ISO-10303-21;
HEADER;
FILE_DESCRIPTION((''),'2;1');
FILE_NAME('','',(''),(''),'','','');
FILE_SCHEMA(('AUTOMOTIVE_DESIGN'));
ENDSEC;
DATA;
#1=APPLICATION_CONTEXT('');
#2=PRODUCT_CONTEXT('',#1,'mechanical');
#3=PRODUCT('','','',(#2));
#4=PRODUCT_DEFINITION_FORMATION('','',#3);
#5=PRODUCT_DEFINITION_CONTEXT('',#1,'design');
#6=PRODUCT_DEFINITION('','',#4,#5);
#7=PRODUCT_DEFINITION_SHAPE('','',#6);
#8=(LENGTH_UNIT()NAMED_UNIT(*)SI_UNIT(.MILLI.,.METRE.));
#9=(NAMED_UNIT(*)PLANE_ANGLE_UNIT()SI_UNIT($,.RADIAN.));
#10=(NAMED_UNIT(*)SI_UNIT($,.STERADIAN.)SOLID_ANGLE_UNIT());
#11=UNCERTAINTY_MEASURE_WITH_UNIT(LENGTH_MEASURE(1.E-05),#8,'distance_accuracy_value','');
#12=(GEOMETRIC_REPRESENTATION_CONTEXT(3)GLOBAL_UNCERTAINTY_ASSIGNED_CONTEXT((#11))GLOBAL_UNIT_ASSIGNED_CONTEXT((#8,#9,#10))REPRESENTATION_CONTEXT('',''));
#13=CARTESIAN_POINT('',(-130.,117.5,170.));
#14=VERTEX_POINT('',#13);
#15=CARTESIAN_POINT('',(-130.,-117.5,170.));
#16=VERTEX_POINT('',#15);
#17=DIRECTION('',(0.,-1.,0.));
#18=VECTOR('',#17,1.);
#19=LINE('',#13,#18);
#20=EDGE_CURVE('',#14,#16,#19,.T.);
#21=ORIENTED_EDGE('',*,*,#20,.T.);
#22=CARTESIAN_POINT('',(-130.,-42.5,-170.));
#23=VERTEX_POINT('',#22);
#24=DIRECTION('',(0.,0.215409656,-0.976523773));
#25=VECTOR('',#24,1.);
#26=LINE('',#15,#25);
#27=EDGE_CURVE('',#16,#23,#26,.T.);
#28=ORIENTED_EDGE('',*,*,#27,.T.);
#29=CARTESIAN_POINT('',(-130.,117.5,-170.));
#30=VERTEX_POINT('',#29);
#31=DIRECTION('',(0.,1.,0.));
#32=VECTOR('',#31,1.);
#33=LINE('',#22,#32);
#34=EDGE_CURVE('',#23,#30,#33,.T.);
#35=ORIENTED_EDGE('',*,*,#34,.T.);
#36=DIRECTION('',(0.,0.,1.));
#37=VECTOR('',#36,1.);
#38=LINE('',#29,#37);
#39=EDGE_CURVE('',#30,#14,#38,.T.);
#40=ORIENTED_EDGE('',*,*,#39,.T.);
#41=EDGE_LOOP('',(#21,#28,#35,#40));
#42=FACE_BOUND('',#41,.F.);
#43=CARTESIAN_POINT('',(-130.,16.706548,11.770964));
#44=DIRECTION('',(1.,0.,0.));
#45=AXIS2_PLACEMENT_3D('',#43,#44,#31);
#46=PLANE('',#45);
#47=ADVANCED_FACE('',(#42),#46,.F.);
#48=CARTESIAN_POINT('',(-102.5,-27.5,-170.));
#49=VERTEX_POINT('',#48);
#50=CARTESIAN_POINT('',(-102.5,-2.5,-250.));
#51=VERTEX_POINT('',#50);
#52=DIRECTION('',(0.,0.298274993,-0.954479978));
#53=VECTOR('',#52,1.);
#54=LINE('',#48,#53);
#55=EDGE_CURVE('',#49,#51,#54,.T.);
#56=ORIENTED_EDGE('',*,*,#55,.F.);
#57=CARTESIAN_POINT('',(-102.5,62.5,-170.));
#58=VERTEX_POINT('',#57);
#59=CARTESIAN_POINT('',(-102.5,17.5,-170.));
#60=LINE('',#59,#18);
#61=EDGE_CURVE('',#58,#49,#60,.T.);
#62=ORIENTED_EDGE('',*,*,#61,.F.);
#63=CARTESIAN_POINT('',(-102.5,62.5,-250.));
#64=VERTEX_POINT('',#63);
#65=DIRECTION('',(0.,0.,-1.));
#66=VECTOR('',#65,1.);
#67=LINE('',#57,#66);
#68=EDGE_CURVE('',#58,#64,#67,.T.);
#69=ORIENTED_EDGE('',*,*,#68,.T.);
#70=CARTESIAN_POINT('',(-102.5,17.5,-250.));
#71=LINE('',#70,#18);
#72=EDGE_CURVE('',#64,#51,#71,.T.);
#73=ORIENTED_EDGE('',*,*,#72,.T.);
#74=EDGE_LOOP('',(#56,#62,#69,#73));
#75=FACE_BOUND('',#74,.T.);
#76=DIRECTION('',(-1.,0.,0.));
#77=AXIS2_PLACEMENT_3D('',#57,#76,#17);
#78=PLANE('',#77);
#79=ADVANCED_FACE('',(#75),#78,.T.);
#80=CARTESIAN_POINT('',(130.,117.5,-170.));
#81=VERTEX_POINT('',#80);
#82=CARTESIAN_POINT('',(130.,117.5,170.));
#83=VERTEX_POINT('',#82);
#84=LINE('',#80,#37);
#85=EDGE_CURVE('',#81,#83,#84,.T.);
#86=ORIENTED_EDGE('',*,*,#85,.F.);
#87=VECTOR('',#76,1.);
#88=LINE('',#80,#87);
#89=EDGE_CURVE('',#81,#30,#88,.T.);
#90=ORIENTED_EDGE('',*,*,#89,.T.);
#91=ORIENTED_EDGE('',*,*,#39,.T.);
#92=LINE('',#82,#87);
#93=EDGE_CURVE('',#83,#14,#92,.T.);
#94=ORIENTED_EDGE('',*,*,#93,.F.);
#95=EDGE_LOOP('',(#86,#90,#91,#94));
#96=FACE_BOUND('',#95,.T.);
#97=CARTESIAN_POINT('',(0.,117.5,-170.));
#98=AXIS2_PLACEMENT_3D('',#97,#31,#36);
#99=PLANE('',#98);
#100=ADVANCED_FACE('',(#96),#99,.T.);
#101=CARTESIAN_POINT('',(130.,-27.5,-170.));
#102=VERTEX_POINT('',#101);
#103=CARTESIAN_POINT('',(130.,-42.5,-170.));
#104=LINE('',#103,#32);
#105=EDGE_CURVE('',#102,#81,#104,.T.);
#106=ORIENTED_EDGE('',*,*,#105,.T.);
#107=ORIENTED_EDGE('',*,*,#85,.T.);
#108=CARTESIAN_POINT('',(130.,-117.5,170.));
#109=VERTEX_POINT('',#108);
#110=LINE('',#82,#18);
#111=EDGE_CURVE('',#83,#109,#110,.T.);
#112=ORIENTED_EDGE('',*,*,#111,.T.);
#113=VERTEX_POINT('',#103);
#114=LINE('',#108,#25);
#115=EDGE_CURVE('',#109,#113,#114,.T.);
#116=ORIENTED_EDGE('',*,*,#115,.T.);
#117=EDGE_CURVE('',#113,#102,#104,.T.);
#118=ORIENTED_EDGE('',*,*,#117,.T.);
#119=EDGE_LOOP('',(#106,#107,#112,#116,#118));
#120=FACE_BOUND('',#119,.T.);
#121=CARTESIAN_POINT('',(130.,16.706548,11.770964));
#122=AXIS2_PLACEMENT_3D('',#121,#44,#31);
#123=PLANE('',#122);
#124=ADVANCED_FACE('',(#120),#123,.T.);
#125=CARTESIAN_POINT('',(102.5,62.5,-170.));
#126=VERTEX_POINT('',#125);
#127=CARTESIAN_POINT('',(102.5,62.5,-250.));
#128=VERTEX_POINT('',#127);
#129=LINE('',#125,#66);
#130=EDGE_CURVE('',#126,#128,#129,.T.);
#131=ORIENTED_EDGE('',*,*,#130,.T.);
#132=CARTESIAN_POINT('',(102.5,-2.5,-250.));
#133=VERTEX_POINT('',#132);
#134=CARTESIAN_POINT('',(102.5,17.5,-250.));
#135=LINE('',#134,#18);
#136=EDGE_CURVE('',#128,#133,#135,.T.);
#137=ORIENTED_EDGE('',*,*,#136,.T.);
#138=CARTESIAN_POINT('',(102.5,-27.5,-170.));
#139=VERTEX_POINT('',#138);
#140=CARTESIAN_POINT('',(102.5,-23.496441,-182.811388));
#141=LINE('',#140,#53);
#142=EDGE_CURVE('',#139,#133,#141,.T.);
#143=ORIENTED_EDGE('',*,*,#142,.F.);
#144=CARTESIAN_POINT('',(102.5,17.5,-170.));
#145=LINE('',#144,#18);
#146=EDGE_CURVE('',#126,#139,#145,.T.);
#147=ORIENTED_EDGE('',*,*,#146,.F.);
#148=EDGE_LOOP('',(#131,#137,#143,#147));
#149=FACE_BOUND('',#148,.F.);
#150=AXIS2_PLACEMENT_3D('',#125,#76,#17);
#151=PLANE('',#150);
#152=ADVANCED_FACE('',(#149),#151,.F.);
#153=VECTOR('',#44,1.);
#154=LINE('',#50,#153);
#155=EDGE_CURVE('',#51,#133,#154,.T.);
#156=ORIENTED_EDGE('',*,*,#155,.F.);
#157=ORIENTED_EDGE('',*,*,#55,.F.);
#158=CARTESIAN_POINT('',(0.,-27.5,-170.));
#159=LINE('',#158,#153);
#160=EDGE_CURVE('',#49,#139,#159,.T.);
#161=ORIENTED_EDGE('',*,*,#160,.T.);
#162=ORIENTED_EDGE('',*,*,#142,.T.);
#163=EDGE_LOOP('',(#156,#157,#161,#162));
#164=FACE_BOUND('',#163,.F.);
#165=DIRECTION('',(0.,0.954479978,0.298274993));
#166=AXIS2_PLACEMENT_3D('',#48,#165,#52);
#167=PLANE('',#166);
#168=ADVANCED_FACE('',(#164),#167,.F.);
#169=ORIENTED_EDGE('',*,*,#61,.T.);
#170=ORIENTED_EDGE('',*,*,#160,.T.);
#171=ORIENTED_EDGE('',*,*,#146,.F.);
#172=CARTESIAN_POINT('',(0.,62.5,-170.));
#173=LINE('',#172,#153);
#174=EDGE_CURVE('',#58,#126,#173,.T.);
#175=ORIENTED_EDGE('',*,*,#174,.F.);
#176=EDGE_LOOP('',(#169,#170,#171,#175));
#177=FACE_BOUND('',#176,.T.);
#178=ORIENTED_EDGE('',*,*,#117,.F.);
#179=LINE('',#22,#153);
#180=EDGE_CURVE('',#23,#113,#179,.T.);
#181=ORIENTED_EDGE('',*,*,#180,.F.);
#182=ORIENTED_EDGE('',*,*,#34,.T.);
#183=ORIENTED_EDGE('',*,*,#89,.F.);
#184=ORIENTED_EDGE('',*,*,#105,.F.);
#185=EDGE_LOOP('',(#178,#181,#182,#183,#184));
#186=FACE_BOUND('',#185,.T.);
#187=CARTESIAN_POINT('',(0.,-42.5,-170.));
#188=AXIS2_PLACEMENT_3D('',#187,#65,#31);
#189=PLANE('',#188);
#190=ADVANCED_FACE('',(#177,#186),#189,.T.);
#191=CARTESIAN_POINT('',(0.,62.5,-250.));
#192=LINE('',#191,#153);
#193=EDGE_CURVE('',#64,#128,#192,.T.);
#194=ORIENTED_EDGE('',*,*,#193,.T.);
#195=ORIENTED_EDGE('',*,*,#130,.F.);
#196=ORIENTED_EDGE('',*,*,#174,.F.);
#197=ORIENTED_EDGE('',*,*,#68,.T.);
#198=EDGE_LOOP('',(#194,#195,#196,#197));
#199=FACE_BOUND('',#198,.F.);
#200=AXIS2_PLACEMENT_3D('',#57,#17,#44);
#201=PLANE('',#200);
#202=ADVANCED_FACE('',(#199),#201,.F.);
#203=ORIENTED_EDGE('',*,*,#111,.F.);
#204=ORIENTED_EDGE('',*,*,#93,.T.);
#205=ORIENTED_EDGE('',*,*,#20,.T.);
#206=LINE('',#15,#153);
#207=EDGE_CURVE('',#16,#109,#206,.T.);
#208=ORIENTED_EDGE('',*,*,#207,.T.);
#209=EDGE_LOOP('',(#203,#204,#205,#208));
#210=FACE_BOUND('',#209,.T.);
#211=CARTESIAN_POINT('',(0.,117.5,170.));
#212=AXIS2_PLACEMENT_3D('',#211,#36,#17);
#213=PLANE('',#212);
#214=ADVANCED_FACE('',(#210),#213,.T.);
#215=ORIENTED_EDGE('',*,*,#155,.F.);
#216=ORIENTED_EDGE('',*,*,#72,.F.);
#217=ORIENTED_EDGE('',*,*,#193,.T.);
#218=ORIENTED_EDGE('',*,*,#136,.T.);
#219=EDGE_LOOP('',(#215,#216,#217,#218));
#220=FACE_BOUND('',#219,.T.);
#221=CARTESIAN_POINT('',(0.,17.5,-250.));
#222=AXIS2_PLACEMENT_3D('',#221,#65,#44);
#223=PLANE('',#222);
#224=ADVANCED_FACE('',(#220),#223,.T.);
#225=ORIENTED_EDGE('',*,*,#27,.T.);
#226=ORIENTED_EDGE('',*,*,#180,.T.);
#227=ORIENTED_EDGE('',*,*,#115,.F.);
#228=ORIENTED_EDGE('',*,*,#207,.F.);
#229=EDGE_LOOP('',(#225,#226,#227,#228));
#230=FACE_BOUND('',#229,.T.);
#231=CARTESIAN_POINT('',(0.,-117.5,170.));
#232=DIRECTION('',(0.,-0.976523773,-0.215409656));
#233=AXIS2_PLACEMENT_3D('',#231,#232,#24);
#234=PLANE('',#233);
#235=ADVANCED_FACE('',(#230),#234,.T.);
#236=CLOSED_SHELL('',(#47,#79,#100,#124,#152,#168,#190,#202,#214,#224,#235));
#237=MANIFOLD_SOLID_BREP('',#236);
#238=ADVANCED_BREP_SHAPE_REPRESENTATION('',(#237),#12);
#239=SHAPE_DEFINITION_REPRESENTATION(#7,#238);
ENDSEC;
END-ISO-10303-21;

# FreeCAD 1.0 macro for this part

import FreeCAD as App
import Part
import Sketcher

V = App.Vector
Q = App.Units.Quantity


def add_polygon(sketch, points):
    """Adds a closed chain of lines whose ends are joined by coincident constraints."""
    first, n = sketch.GeometryCount, len(points)
    for a, b in zip(points, points[1:] + points[:1]):
        sketch.addGeometry(Part.LineSegment(App.Vector(*a, 0), App.Vector(*b, 0)), False)
    for i in range(n):
        sketch.addConstraint(Sketcher.Constraint("Coincident", first + i, 2, first + (i + 1) % n, 1))

doc = App.newDocument("Part")
body = doc.addObject("PartDesign::Body", "Body")

# Sketch on YZ plane
sketch1 = body.newObject("Sketcher::SketchObject", "Sketch")
sketch1.AttachmentSupport = (doc.getObject("YZ_Plane"), [""])
sketch1.MapMode = "FlatFace"
add_polygon(sketch1, [(118, 170), (-118, 170), (-42, -170), (118, -170)])  # lines 0-3
sketch1.addConstraint([
    Sketcher.Constraint("Horizontal", 0),
    Sketcher.Constraint("Horizontal", 2),
    Sketcher.Constraint("Vertical", 3),
    Sketcher.Constraint("Symmetric", 0, 2, 2, 2, -1, 1),
    Sketcher.Constraint("DistanceX", 0, 2, 0, 1, Q("235 mm")),
    Sketcher.Constraint("DistanceX", 2, 1, 2, 2, Q("160 mm")),
    Sketcher.Constraint("DistanceY", 3, 1, 3, 2, Q("340 mm")),
])
pad1 = body.newObject("PartDesign::Pad", "Pad")
pad1.Profile = sketch1
pad1.Length = 260
pad1.Midplane = True

# Sketch on XY plane
sketch2 = body.newObject("Sketcher::SketchObject", "Sketch001")
sketch2.AttachmentSupport = (doc.getObject("XY_Plane"), [""])
sketch2.MapMode = "FlatFace"
sketch2.AttachmentOffset = App.Placement(V(0, 0, -170), App.Rotation())
add_polygon(sketch2, [(-102, -28), (-102, 62), (102, 62), (102, -28)])  # lines 0-3
sketch2.addConstraint([
    Sketcher.Constraint("Vertical", 0),
    Sketcher.Constraint("Horizontal", 1),
    Sketcher.Constraint("Vertical", 2),
    Sketcher.Constraint("Horizontal", 3),
    Sketcher.Constraint("DistanceX", 1, 1, 1, 2, Q("205 mm")),
    Sketcher.Constraint("DistanceY", 0, 1, 0, 2, Q("90 mm")),
    Sketcher.Constraint("DistanceX", 0, 2, -1, 1, Q("102.5 mm")),
    Sketcher.Constraint("DistanceY", -1, 1, 0, 2, Q("62.5 mm")),
])
pad2 = body.newObject("PartDesign::Pad", "Pad001")
pad2.Profile = sketch2
pad2.Length = 80
pad2.Reversed = True

# Sketch on YZ plane
sketch3 = body.newObject("Sketcher::SketchObject", "Sketch002")
sketch3.AttachmentSupport = (doc.getObject("YZ_Plane"), [""])
sketch3.MapMode = "FlatFace"
sketch3.AttachmentOffset = App.Placement(V(0, 0, -102.5), App.Rotation())
add_polygon(sketch3, [(-28, -250), (-28, -170), (-2, -250)])  # lines 0-2
sketch3.addConstraint([
    Sketcher.Constraint("Vertical", 0),
    Sketcher.Constraint("Horizontal", 2),
    Sketcher.Constraint("DistanceX", 2, 2, 2, 1, Q("25 mm")),
    Sketcher.Constraint("DistanceY", 0, 1, 0, 2, Q("80 mm")),
    Sketcher.Constraint("DistanceY", 0, 2, -1, 1, Q("170 mm")),
    Sketcher.Constraint("DistanceX", 0, 2, -1, 1, Q("27.5 mm")),
])
pocket1 = body.newObject("PartDesign::Pocket", "Pocket")
pocket1.Profile = sketch3
pocket1.Type = "ThroughAll"
pocket1.Reversed = True

doc.recompute()
